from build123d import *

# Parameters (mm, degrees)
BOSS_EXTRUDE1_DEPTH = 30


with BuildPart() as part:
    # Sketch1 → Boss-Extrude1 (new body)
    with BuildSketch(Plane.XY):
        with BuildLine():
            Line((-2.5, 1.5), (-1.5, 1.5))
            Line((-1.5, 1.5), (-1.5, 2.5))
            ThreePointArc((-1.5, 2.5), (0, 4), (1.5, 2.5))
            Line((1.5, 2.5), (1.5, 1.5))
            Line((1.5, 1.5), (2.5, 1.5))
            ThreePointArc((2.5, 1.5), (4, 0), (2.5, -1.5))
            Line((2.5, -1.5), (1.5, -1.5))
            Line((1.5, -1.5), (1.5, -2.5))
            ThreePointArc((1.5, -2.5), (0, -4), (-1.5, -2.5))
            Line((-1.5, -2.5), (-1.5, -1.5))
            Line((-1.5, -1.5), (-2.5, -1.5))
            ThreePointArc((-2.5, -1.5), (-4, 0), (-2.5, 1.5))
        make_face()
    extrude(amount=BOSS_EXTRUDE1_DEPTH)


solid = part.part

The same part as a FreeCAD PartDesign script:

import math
import FreeCAD as App
import Part
import Sketcher
from FreeCAD import Vector

doc = App.newDocument("Part")
body = doc.addObject("PartDesign::Body", "Body")

# Sketch on XY plane
sketch1 = body.newObject("Sketcher::SketchObject", "Sketch")
sketch1.AttachmentSupport = (doc.getObject("XY_Plane"), [""])
sketch1.MapMode = "FlatFace"
sketch1.addGeometry([
    Part.LineSegment(Vector(-1.5, 1.5, 0), Vector(-2.5, 1.5, 0)),  # 0
    Part.ArcOfCircle(Part.Circle(Vector(-2.5, 0, 0), Vector(0, 0, 1), 1.5), math.radians(90), math.radians(270)),  # 1
    Part.LineSegment(Vector(-2.5, -1.5, 0), Vector(-1.5, -1.5, 0)),  # 2
    Part.LineSegment(Vector(-1.5, -1.5, 0), Vector(-1.5, -2.5, 0)),  # 3
    Part.ArcOfCircle(Part.Circle(Vector(0, -2.5, 0), Vector(0, 0, 1), 1.5), math.radians(180), math.radians(360)),  # 4
    Part.LineSegment(Vector(1.5, -2.5, 0), Vector(1.5, -1.5, 0)),  # 5
    Part.LineSegment(Vector(1.5, -1.5, 0), Vector(2.5, -1.5, 0)),  # 6
    Part.ArcOfCircle(Part.Circle(Vector(2.5, 0, 0), Vector(0, 0, 1), 1.5), math.radians(-90), math.radians(90)),  # 7
    Part.LineSegment(Vector(2.5, 1.5, 0), Vector(1.5, 1.5, 0)),  # 8
    Part.LineSegment(Vector(1.5, 1.5, 0), Vector(1.5, 2.5, 0)),  # 9
    Part.ArcOfCircle(Part.Circle(Vector(0, 2.5, 0), Vector(0, 0, 1), 1.5), math.radians(0), math.radians(180)),  # 10
    Part.LineSegment(Vector(-1.5, 2.5, 0), Vector(-1.5, 1.5, 0)),  # 11
], False)
sketch1.addConstraint([
    Sketcher.Constraint("Tangent", 0, 2, 1, 1),
    Sketcher.Constraint("Tangent", 1, 2, 2, 1),
    Sketcher.Constraint("Coincident", 2, 2, 3, 1),
    Sketcher.Constraint("Tangent", 3, 2, 4, 1),
    Sketcher.Constraint("Tangent", 4, 2, 5, 1),
    Sketcher.Constraint("Coincident", 5, 2, 6, 1),
    Sketcher.Constraint("Tangent", 6, 2, 7, 1),
    Sketcher.Constraint("Tangent", 7, 2, 8, 1),
    Sketcher.Constraint("Coincident", 8, 2, 9, 1),
    Sketcher.Constraint("Tangent", 9, 2, 10, 1),
    Sketcher.Constraint("Tangent", 10, 2, 11, 1),
    Sketcher.Constraint("Coincident", 11, 2, 0, 1),
    Sketcher.Constraint("Horizontal", 0),
    Sketcher.Constraint("Horizontal", 2),
    Sketcher.Constraint("Vertical", 3),
    Sketcher.Constraint("Vertical", 5),
    Sketcher.Constraint("Horizontal", 6),
    Sketcher.Constraint("Horizontal", 8),
    Sketcher.Constraint("Vertical", 9),
    Sketcher.Constraint("Vertical", 11),
    Sketcher.Constraint("Equal", 1, 4),
    Sketcher.Constraint("Equal", 4, 7),
    Sketcher.Constraint("Equal", 7, 10),
    Sketcher.Constraint("Symmetric", 1, 3, 7, 3, -1, 1),
    Sketcher.Constraint("Symmetric", 4, 3, 10, 3, -1, 1),
    Sketcher.Constraint("Symmetric", 2, 2, 5, 2, -2),
    Sketcher.Constraint("Equal", 8, 3),
    Sketcher.Constraint("Radius", 1, 1.5),
    Sketcher.Constraint("DistanceX", 0, 2, 0, 1, 1.0),
])
pad1 = body.newObject("PartDesign::Pad", "Pad")
pad1.Profile = sketch1
pad1.Length = 30

doc.recompute()
